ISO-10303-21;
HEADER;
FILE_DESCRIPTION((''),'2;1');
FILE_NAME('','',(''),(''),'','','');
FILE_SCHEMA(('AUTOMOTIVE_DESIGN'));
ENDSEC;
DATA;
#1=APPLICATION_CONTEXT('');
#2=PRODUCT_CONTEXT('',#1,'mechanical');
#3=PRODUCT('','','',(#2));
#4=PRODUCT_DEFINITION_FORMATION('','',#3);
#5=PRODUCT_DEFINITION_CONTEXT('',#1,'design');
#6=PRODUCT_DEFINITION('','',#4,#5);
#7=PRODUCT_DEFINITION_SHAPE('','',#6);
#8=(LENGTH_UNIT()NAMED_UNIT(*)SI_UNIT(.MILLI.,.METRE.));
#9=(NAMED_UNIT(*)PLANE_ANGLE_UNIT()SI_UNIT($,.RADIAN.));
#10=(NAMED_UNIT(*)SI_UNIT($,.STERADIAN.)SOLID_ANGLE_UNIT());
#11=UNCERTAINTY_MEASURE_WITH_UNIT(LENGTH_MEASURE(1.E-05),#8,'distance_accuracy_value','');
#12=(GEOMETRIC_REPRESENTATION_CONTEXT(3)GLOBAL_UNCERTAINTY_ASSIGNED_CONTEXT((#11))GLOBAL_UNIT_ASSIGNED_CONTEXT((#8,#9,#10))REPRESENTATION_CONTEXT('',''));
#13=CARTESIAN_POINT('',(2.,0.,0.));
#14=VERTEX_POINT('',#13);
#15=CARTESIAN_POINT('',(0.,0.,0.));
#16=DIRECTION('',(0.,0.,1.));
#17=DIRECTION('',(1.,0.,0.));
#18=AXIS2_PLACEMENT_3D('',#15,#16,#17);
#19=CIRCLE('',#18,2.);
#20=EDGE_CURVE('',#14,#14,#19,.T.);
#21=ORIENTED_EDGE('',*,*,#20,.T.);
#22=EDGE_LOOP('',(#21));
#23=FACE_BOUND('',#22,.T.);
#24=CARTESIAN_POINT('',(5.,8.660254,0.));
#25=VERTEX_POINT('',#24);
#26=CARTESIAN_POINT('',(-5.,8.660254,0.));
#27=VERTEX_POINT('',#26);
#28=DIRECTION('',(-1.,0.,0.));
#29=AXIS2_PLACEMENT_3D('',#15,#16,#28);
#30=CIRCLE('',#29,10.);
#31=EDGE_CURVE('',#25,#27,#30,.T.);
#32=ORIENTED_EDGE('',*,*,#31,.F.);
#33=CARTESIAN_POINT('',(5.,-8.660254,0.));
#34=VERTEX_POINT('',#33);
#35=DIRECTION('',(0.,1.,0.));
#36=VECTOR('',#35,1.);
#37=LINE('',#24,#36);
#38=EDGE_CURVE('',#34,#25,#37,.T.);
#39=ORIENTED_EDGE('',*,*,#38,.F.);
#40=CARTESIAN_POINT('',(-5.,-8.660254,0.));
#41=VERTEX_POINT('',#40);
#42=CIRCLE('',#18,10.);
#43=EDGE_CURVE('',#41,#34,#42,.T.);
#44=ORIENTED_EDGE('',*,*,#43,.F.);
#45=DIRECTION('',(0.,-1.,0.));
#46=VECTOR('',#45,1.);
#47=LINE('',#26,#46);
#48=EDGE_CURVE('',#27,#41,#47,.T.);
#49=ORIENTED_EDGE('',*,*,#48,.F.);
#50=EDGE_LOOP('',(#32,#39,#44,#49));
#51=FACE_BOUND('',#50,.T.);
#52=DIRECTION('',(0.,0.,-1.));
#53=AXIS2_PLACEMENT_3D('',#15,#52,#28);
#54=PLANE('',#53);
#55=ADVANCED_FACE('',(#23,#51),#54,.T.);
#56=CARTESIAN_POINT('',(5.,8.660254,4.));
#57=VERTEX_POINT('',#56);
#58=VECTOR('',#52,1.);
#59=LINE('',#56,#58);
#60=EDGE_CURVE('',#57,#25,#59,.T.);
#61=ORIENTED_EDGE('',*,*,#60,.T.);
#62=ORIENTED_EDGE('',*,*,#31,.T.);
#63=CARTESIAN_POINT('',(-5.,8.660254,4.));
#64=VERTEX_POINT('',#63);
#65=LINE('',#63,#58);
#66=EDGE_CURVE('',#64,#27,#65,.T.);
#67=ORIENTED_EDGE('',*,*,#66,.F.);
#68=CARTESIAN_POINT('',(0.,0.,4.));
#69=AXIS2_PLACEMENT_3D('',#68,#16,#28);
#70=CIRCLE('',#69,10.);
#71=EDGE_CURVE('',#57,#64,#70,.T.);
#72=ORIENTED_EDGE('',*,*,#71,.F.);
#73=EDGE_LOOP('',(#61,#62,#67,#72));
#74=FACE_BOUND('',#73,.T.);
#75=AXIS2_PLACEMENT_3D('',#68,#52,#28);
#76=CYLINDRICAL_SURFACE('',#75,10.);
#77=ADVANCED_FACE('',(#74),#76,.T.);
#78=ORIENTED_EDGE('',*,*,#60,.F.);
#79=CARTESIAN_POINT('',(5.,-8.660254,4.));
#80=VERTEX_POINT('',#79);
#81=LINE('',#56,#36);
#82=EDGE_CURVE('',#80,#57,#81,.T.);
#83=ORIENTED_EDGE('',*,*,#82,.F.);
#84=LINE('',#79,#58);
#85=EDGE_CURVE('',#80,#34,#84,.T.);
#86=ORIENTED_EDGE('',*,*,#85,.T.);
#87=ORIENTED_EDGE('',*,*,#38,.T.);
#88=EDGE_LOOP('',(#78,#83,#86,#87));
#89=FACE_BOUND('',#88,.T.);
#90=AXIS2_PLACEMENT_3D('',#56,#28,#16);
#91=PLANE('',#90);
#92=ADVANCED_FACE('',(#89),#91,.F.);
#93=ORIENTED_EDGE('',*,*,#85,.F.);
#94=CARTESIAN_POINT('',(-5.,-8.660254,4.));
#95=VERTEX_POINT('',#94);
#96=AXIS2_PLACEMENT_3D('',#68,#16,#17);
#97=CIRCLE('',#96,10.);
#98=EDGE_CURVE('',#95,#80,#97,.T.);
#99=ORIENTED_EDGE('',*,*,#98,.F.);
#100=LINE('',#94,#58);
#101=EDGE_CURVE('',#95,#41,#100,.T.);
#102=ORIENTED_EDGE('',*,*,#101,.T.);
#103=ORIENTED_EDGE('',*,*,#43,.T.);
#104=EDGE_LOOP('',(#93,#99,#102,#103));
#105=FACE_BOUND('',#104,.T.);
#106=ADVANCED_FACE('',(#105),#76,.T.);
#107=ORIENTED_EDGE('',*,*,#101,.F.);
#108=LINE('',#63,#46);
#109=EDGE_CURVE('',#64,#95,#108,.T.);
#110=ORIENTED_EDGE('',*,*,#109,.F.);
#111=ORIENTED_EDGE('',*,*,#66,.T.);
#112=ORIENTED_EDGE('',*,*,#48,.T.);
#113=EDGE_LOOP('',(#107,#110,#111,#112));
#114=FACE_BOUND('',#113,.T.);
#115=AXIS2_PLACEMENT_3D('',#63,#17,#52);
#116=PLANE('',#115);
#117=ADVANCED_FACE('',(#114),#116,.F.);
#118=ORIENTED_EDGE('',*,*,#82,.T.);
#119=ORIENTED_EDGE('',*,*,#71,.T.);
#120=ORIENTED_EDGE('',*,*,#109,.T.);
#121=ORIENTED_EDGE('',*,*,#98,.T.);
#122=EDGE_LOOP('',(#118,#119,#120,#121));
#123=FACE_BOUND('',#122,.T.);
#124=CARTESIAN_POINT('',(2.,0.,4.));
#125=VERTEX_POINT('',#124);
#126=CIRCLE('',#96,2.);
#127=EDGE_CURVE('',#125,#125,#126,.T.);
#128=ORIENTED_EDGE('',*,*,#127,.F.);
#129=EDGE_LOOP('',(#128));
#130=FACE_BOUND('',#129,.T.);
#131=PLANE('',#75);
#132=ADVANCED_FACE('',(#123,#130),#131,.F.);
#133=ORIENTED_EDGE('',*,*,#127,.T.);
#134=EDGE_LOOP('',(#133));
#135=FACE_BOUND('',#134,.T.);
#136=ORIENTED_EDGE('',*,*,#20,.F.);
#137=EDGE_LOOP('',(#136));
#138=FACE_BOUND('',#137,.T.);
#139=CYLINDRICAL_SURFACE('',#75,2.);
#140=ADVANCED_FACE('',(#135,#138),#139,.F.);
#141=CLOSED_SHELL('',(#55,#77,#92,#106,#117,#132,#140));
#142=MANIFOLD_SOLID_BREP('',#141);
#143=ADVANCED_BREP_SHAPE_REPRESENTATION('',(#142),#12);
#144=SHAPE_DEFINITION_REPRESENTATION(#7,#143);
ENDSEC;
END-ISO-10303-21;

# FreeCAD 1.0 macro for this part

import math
import FreeCAD as App
import Part
import Sketcher
from FreeCAD import Vector

doc = App.newDocument("Part")
body = doc.addObject("PartDesign::Body", "Body")

# Sketch on XY plane
sketch1 = body.newObject("Sketcher::SketchObject", "Sketch")
sketch1.AttachmentSupport = (doc.getObject("XY_Plane"), [""])
sketch1.MapMode = "FlatFace"
sketch1.addGeometry([
    Part.LineSegment(Vector(-5, 8.7, 0), Vector(-5, -8.7, 0)),  # 0
    Part.ArcOfCircle(Part.Circle(Vector(0, 0, 0), Vector(0, 0, 1), 10), math.radians(-120), math.radians(-60)),  # 1
    Part.LineSegment(Vector(5, -8.7, 0), Vector(5, 8.7, 0)),  # 2
    Part.ArcOfCircle(Part.Circle(Vector(0, 0, 0), Vector(0, 0, 1), 10), math.radians(60), math.radians(120)),  # 3
    Part.Circle(Vector(0, 0, 0), Vector(0, 0, 1), 2),  # 4
], False)
sketch1.addConstraint([
    Sketcher.Constraint("Coincident", 0, 2, 1, 1),
    Sketcher.Constraint("Coincident", 1, 2, 2, 1),
    Sketcher.Constraint("Coincident", 2, 2, 3, 1),
    Sketcher.Constraint("Coincident", 3, 2, 0, 1),
    Sketcher.Constraint("Vertical", 0),
    Sketcher.Constraint("Vertical", 2),
    Sketcher.Constraint("Coincident", 1, 3, -1, 1),
    Sketcher.Constraint("Coincident", 3, 3, -1, 1),
    Sketcher.Constraint("Coincident", 4, 3, -1, 1),
    Sketcher.Constraint("Equal", 1, 3),
    Sketcher.Constraint("Horizontal", 0, 2, 1, 2),
    Sketcher.Constraint("Diameter", 4, 4.0),
    Sketcher.Constraint("Radius", 1, 10.0),
    Sketcher.Constraint("DistanceX", 0, 2, -1, 1, 5.0),
])
pad1 = body.newObject("PartDesign::Pad", "Pad")
pad1.Profile = sketch1
pad1.Length = 4

doc.recompute()
